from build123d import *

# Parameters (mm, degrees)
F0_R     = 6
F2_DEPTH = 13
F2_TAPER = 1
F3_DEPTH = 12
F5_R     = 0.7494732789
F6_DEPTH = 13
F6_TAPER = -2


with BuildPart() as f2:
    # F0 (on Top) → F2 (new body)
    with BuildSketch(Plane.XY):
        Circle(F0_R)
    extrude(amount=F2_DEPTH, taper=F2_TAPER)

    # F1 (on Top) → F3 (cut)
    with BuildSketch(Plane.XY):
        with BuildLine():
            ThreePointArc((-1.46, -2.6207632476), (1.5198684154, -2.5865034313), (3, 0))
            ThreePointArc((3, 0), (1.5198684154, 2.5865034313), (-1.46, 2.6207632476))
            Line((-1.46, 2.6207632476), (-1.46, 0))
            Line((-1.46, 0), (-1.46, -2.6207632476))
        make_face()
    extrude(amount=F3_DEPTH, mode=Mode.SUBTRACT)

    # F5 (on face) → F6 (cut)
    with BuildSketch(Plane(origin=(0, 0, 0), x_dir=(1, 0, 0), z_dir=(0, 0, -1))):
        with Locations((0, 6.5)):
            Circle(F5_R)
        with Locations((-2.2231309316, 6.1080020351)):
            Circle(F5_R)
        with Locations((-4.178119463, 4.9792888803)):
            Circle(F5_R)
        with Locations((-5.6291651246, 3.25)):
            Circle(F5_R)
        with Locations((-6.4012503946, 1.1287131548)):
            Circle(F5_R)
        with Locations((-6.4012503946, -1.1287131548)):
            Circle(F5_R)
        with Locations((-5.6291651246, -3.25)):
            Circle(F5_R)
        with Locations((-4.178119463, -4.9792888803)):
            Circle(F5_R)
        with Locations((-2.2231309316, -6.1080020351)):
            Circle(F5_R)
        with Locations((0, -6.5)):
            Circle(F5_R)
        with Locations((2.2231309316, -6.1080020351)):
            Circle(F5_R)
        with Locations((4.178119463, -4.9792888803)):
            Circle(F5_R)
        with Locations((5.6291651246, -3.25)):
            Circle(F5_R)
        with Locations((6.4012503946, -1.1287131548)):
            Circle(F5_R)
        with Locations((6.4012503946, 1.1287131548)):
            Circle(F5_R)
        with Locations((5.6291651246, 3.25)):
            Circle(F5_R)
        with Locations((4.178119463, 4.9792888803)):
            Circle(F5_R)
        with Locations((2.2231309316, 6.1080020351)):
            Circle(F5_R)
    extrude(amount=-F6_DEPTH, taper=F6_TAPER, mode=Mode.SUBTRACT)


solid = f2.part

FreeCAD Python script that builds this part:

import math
import FreeCAD as App
import Part
import Sketcher
from FreeCAD import Vector

doc = App.newDocument("Part")
body = doc.addObject("PartDesign::Body", "Body")

sketch1 = body.newObject("Sketcher::SketchObject", "Sketch")
sketch1.AttachmentSupport = (doc.getObject("XY_Plane"), [""])
sketch1.MapMode = "FlatFace"
sketch1.addGeometry(Part.Circle(Vector(0, 0, 0), Vector(0, 0, 1), 6), False)
sketch1.addConstraint(Sketcher.Constraint("Coincident", 0, 3, -1, 1))
sketch1.addConstraint(Sketcher.Constraint("Diameter", 0, 12.0))
pad1 = body.newObject("PartDesign::Pad", "Pad")
pad1.Profile = sketch1
pad1.Length = 13
pad1.TaperAngle = -1

sketch2 = body.newObject("Sketcher::SketchObject", "Sketch001")
sketch2.AttachmentSupport = (doc.getObject("XY_Plane"), [""])
sketch2.MapMode = "FlatFace"
sketch2.addGeometry(Part.ArcOfCircle(Part.Circle(Vector(0, 0, 0), Vector(0, 0, 1), 3), math.radians(-119), math.radians(0)), False)
sketch2.addGeometry(Part.ArcOfCircle(Part.Circle(Vector(0, 0, 0), Vector(0, 0, 1), 3), math.radians(0), math.radians(119)), False)
sketch2.addGeometry(Part.LineSegment(Vector(-1.5, 2.6, 0), Vector(-1.5, -2.6, 0)), False)
sketch2.addConstraint(Sketcher.Constraint("Tangent", 0, 2, 1, 1))
sketch2.addConstraint(Sketcher.Constraint("Coincident", 1, 2, 2, 1))
sketch2.addConstraint(Sketcher.Constraint("Coincident", 2, 2, 0, 1))
sketch2.addConstraint(Sketcher.Constraint("Vertical", 2))
sketch2.addConstraint(Sketcher.Constraint("Coincident", 0, 3, -1, 1))
sketch2.addConstraint(Sketcher.Constraint("Equal", 0, 1))
sketch2.addConstraint(Sketcher.Constraint("PointOnObject", 0, 2, -1))
sketch2.addConstraint(Sketcher.Constraint("Radius", 0, 3.0))
sketch2.addConstraint(Sketcher.Constraint("DistanceX", 1, 2, -1, 1, 1.46))
pocket1 = body.newObject("PartDesign::Pocket", "Pocket")
pocket1.Profile = sketch2
pocket1.Length = 12
pocket1.Reversed = True

sketch3 = body.newObject("Sketcher::SketchObject", "Sketch002")
sketch3.AttachmentSupport = (doc.getObject("XY_Plane"), [""])
sketch3.MapMode = "FlatFace"
sketch3.addGeometry(Part.Circle(Vector(0, -6.5, 0), Vector(0, 0, 1), 0.7), False)
sketch3.addGeometry(Part.Circle(Vector(-2.2, -6.1, 0), Vector(0, 0, 1), 0.7), False)
sketch3.addGeometry(Part.Circle(Vector(-4.2, -5, 0), Vector(0, 0, 1), 0.7), False)
sketch3.addGeometry(Part.Circle(Vector(-5.6, -3.2, 0), Vector(0, 0, 1), 0.7), False)
sketch3.addGeometry(Part.Circle(Vector(-6.4, -1.1, 0), Vector(0, 0, 1), 0.7), False)
sketch3.addGeometry(Part.Circle(Vector(-6.4, 1.1, 0), Vector(0, 0, 1), 0.7), False)
sketch3.addGeometry(Part.Circle(Vector(-5.6, 3.2, 0), Vector(0, 0, 1), 0.7), False)
sketch3.addGeometry(Part.Circle(Vector(-4.2, 5, 0), Vector(0, 0, 1), 0.7), False)
sketch3.addGeometry(Part.Circle(Vector(-2.2, 6.1, 0), Vector(0, 0, 1), 0.7), False)
sketch3.addGeometry(Part.Circle(Vector(0, 6.5, 0), Vector(0, 0, 1), 0.7), False)
sketch3.addGeometry(Part.Circle(Vector(2.2, 6.1, 0), Vector(0, 0, 1), 0.7), False)
sketch3.addGeometry(Part.Circle(Vector(4.2, 5, 0), Vector(0, 0, 1), 0.7), False)
sketch3.addGeometry(Part.Circle(Vector(5.6, 3.2, 0), Vector(0, 0, 1), 0.7), False)
sketch3.addGeometry(Part.Circle(Vector(6.4, 1.1, 0), Vector(0, 0, 1), 0.7), False)
sketch3.addGeometry(Part.Circle(Vector(6.4, -1.1, 0), Vector(0, 0, 1), 0.7), False)
sketch3.addGeometry(Part.Circle(Vector(5.6, -3.2, 0), Vector(0, 0, 1), 0.7), False)
sketch3.addGeometry(Part.Circle(Vector(4.2, -5, 0), Vector(0, 0, 1), 0.7), False)
sketch3.addGeometry(Part.Circle(Vector(2.2, -6.1, 0), Vector(0, 0, 1), 0.7), False)
sketch3.addConstraint(Sketcher.Constraint("Equal", 0, 1))
sketch3.addConstraint(Sketcher.Constraint("Equal", 1, 2))
sketch3.addConstraint(Sketcher.Constraint("Equal", 2, 3))
sketch3.addConstraint(Sketcher.Constraint("Equal", 3, 4))
sketch3.addConstraint(Sketcher.Constraint("Equal", 4, 5))
sketch3.addConstraint(Sketcher.Constraint("Equal", 5, 6))
sketch3.addConstraint(Sketcher.Constraint("Equal", 6, 7))
sketch3.addConstraint(Sketcher.Constraint("Equal", 7, 8))
sketch3.addConstraint(Sketcher.Constraint("Equal", 8, 9))
sketch3.addConstraint(Sketcher.Constraint("Equal", 9, 10))
sketch3.addConstraint(Sketcher.Constraint("Equal", 10, 11))
sketch3.addConstraint(Sketcher.Constraint("Equal", 11, 12))
sketch3.addConstraint(Sketcher.Constraint("Equal", 12, 13))
sketch3.addConstraint(Sketcher.Constraint("Equal", 13, 14))
sketch3.addConstraint(Sketcher.Constraint("Equal", 14, 15))
sketch3.addConstraint(Sketcher.Constraint("Equal", 15, 16))
sketch3.addConstraint(Sketcher.Constraint("Equal", 16, 17))
sketch3.addConstraint(Sketcher.Constraint("Symmetric", 0, 3, 9, 3, -1, 1))
sketch3.addConstraint(Sketcher.Constraint("Symmetric", 1, 3, 10, 3, -1, 1))
sketch3.addConstraint(Sketcher.Constraint("Symmetric", 2, 3, 11, 3, -1, 1))
sketch3.addConstraint(Sketcher.Constraint("Symmetric", 3, 3, 12, 3, -1, 1))
sketch3.addConstraint(Sketcher.Constraint("Symmetric", 4, 3, 13, 3, -1, 1))
sketch3.addConstraint(Sketcher.Constraint("Symmetric", 5, 3, 14, 3, -1, 1))
sketch3.addConstraint(Sketcher.Constraint("Symmetric", 6, 3, 15, 3, -1, 1))
sketch3.addConstraint(Sketcher.Constraint("Symmetric", 7, 3, 16, 3, -1, 1))
sketch3.addConstraint(Sketcher.Constraint("Symmetric", 8, 3, 17, 3, -1, 1))
sketch3.addConstraint(Sketcher.Constraint("Symmetric", 8, 3, 10, 3, -2))
sketch3.addConstraint(Sketcher.Constraint("Symmetric", 7, 3, 11, 3, -2))
sketch3.addConstraint(Sketcher.Constraint("Symmetric", 6, 3, 12, 3, -2))
sketch3.addConstraint(Sketcher.Constraint("Symmetric", 5, 3, 13, 3, -2))
sketch3.addConstraint(Sketcher.Constraint("PointOnObject", 0, 3, -2))
sketch3.addConstraint(Sketcher.Constraint("DistanceY", 0, 3, -1, 1, 6.5))
sketch3.addConstraint(Sketcher.Constraint("DistanceY", 3, 3, 6, 3, 6.5))
sketch3.addConstraint(Sketcher.Constraint("Diameter", 0, 1.498947))
sketch3.addConstraint(Sketcher.Constraint("DistanceX", 1, 3, -1, 1, 2.223131))
sketch3.addConstraint(Sketcher.Constraint("DistanceX", 2, 3, -1, 1, 4.178119))
sketch3.addConstraint(Sketcher.Constraint("DistanceY", 2, 3, -1, 1, 4.979289))
sketch3.addConstraint(Sketcher.Constraint("DistanceX", 4, 3, -1, 1, 6.40125))
sketch3.addConstraint(Sketcher.Constraint("DistanceY", 1, 3, 4, 3, 4.979289))
sketch3.addConstraint(Sketcher.Constraint("DistanceY", 1, 3, -1, 1, 6.108002))
sketch3.addConstraint(Sketcher.Constraint("DistanceX", 3, 3, -1, 1, 5.629165))
pocket2 = body.newObject("PartDesign::Pocket", "Pocket001")
pocket2.Profile = sketch3
pocket2.Length = 13
pocket2.Reversed = True
pocket2.TaperAngle = 2

doc.recompute()
